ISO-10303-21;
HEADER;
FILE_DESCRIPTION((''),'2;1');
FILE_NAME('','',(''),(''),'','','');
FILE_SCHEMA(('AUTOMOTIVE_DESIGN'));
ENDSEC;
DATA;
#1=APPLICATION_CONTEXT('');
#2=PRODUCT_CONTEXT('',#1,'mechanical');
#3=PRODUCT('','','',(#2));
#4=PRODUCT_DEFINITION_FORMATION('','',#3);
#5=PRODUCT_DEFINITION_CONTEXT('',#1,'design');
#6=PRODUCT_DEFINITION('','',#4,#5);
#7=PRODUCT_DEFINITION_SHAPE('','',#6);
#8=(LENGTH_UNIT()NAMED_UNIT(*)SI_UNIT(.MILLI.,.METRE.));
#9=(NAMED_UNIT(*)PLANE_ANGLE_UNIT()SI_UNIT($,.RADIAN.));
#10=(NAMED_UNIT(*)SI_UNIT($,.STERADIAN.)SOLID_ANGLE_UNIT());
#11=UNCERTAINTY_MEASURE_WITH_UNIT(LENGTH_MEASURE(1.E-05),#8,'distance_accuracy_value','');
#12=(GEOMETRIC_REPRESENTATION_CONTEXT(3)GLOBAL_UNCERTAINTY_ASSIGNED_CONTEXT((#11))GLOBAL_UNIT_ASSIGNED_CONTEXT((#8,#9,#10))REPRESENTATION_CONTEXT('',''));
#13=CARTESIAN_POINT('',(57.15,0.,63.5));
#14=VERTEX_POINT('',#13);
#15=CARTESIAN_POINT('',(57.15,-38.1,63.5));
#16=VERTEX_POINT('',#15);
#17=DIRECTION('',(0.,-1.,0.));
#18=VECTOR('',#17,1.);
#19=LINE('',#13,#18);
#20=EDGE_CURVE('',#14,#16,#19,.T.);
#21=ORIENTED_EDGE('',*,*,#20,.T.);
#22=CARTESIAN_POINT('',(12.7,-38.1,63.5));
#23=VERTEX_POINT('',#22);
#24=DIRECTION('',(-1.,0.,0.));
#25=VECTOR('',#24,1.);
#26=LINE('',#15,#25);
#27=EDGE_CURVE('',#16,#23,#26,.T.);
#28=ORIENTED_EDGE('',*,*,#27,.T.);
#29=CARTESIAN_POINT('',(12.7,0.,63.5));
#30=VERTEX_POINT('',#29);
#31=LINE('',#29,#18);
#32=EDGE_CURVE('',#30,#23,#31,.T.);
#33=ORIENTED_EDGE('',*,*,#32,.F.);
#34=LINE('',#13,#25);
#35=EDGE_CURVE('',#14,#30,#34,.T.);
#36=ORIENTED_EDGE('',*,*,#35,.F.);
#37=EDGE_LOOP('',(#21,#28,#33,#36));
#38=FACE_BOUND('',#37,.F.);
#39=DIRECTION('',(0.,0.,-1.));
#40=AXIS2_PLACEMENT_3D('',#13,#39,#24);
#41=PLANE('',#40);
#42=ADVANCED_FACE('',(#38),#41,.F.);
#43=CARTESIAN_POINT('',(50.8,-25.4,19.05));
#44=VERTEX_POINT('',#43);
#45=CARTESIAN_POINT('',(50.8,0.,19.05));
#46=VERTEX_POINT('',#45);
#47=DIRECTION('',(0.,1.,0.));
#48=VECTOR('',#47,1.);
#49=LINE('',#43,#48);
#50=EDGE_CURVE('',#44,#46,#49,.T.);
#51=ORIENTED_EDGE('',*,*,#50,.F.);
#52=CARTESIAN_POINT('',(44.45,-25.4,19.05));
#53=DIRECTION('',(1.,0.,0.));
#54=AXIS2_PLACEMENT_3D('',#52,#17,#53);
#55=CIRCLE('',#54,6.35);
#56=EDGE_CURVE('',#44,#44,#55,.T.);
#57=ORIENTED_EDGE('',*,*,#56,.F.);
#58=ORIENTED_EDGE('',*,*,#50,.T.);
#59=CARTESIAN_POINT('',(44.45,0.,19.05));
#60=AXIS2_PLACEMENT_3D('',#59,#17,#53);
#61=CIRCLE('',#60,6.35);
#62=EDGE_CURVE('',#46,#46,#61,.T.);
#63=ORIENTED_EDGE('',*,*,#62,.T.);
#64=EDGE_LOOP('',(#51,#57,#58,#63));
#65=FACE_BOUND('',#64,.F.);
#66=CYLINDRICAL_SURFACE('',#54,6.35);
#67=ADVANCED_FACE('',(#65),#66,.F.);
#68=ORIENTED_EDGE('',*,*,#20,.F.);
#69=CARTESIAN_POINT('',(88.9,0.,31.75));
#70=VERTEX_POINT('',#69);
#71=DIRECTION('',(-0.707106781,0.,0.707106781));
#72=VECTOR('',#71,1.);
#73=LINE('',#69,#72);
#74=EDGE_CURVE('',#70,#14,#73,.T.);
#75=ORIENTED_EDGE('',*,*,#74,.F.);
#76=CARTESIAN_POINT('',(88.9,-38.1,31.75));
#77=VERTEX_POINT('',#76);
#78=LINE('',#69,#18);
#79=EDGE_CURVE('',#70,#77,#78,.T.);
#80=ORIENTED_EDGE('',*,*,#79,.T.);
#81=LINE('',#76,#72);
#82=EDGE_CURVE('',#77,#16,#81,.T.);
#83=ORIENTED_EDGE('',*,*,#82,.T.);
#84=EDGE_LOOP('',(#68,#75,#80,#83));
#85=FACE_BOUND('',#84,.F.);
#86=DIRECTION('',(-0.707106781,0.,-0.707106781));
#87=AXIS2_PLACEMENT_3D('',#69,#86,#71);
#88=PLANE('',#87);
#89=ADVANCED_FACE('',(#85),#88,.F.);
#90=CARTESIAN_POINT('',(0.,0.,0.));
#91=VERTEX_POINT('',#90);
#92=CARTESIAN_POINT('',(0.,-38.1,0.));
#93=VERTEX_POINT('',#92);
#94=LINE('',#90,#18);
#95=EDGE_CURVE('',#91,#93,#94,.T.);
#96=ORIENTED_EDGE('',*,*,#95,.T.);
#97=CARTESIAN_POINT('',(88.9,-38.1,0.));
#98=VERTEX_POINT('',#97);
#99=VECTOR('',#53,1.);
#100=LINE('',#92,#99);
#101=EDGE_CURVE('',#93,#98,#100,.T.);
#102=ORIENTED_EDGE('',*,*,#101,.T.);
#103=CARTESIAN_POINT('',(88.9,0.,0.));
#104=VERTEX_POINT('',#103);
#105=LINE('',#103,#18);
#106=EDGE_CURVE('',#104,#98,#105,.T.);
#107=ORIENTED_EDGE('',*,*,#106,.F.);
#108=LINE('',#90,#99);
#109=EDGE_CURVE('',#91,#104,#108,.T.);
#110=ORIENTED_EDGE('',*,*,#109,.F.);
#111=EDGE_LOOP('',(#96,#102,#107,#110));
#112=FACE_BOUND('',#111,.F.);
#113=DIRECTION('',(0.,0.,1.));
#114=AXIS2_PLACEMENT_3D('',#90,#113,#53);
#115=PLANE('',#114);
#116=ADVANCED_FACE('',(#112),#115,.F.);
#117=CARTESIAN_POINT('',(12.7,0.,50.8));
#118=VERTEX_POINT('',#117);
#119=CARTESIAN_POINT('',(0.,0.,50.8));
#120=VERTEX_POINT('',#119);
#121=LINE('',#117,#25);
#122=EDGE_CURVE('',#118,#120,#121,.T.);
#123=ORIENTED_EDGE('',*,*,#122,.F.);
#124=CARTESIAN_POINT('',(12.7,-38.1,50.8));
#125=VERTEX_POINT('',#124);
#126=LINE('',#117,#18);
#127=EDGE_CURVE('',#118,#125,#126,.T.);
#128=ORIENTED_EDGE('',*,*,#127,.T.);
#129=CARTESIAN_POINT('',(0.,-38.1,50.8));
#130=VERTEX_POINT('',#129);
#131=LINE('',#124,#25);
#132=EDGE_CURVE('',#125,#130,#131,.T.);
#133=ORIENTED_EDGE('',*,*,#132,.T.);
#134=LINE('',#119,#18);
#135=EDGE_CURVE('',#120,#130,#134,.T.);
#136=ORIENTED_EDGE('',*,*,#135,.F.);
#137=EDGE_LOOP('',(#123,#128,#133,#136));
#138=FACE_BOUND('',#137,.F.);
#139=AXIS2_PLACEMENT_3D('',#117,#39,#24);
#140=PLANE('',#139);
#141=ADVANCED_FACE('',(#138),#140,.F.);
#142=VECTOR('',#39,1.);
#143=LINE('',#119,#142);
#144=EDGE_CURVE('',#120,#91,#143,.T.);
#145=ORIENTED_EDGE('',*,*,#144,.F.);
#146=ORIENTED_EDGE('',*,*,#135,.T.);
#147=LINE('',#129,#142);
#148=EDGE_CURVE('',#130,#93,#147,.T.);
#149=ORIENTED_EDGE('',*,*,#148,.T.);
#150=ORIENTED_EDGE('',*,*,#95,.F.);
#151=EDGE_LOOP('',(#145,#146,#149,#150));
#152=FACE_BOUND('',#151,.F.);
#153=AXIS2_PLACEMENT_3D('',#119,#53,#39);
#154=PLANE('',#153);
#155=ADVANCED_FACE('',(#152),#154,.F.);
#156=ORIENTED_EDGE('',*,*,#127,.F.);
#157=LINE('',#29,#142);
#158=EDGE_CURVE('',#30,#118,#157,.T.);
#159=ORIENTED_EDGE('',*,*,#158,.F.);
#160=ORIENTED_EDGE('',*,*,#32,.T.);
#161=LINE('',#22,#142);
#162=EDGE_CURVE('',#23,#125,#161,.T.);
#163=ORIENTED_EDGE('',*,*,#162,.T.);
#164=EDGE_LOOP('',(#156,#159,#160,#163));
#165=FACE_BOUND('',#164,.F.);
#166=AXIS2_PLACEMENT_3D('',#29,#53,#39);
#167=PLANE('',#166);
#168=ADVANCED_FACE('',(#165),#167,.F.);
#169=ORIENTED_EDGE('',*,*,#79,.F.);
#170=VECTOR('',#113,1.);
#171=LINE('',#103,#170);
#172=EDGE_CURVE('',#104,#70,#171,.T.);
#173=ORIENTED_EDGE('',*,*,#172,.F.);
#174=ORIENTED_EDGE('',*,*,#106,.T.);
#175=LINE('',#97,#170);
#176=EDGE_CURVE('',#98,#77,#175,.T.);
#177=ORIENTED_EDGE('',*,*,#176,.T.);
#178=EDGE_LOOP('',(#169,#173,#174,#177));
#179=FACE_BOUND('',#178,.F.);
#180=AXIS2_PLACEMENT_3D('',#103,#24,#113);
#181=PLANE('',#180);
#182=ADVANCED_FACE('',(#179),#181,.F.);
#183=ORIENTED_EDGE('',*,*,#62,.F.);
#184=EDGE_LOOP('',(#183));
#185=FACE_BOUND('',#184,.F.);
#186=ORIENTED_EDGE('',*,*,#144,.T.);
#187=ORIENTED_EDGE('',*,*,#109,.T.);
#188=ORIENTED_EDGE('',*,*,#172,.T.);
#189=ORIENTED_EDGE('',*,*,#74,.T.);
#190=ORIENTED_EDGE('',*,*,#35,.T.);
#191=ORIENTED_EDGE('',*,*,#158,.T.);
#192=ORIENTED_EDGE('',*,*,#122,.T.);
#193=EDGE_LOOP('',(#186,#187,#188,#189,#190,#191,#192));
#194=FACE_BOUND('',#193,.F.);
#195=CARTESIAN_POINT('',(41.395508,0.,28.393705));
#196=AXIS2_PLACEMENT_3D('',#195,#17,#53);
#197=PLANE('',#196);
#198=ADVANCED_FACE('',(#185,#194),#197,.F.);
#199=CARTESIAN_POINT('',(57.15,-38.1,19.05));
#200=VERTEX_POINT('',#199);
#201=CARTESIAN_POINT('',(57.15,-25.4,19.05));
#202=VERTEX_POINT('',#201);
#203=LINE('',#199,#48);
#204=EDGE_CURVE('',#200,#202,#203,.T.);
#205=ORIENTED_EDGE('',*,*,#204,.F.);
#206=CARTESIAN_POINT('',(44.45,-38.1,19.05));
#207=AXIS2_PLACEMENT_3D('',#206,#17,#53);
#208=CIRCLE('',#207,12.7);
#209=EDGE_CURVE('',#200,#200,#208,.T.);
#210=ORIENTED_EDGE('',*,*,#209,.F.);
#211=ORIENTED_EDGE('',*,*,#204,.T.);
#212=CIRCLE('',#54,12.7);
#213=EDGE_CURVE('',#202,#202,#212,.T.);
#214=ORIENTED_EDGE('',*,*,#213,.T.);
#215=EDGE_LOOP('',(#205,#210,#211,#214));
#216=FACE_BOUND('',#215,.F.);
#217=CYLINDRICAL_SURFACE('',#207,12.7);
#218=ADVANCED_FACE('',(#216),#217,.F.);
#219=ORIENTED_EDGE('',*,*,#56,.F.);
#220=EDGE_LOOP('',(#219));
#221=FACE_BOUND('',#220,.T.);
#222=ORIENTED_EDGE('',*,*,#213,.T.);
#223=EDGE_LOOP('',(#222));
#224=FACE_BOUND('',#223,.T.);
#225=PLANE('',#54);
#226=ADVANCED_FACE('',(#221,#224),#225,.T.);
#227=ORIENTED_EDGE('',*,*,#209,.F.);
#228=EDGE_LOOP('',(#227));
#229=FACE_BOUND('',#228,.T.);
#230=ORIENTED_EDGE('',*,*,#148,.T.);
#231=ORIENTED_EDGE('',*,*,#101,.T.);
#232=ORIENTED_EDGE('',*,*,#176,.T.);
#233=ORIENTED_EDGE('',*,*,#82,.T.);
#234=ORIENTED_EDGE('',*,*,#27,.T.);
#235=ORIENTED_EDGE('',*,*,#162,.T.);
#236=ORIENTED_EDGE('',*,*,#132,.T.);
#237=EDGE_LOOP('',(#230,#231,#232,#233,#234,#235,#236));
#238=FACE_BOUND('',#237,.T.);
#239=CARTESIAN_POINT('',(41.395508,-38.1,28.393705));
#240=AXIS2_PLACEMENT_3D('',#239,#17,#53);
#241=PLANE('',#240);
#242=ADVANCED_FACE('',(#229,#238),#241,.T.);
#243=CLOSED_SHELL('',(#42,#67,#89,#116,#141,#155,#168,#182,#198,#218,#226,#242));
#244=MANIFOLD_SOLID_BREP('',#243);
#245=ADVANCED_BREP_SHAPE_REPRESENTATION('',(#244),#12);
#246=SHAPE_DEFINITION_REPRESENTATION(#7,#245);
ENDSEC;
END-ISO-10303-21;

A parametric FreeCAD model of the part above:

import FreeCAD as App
import Part
import Sketcher
from FreeCAD import Vector
Q = App.Units.Quantity

doc = App.newDocument("Part")
body = doc.addObject("PartDesign::Body", "Body")

sketch1 = body.newObject("Sketcher::SketchObject", "Sketch")
sketch1.AttachmentSupport = (doc.getObject("XZ_Plane"), [""])
sketch1.MapMode = "FlatFace"
sketch1.addGeometry([
    Part.LineSegment(Vector(0, 51, 0), Vector(0, 0, 0)),
    Part.LineSegment(Vector(0, 0, 0), Vector(89, 0, 0)),
    Part.LineSegment(Vector(89, 0, 0), Vector(89, 32, 0)),
    Part.LineSegment(Vector(89, 32, 0), Vector(57, 64, 0)),
    Part.LineSegment(Vector(57, 64, 0), Vector(13, 64, 0)),
    Part.LineSegment(Vector(13, 64, 0), Vector(13, 51, 0)),
    Part.LineSegment(Vector(13, 51, 0), Vector(0, 51, 0)),
], False)
sketch1.addConstraint([
    Sketcher.Constraint("Coincident", 0, 2, 1, 1),
    Sketcher.Constraint("Coincident", 1, 2, 2, 1),
    Sketcher.Constraint("Coincident", 2, 2, 3, 1),
    Sketcher.Constraint("Coincident", 3, 2, 4, 1),
    Sketcher.Constraint("Coincident", 4, 2, 5, 1),
    Sketcher.Constraint("Coincident", 5, 2, 6, 1),
    Sketcher.Constraint("Coincident", 6, 2, 0, 1),
    Sketcher.Constraint("Vertical", 0),
    Sketcher.Constraint("Horizontal", 1),
    Sketcher.Constraint("Vertical", 2),
    Sketcher.Constraint("Horizontal", 4),
    Sketcher.Constraint("Vertical", 5),
    Sketcher.Constraint("Horizontal", 6),
    Sketcher.Constraint("Coincident", 0, 2, -1, 1),
    Sketcher.Constraint("Equal", 6, 5),
    Sketcher.Constraint("DistanceY", 0, 2, 0, 1, Q("2 in")),
    Sketcher.Constraint("DistanceX", 1, 1, 1, 2, Q("3.5 in")),
    Sketcher.Constraint("DistanceX", 6, 2, 6, 1, Q("0.5 in")),
    Sketcher.Constraint("Angle", 3, Q("135 deg")),
    Sketcher.Constraint("DistanceX", 4, 2, 4, 1, Q("1.75 in")),
])
pad1 = body.newObject("PartDesign::Pad", "Pad")
pad1.Profile = sketch1
pad1.Length = Q("1.5 in")

sketch2 = body.newObject("Sketcher::SketchObject", "Sketch001")
sketch2.AttachmentSupport = (doc.getObject("XZ_Plane"), [""])
sketch2.MapMode = "FlatFace"
sketch2.AttachmentOffset = App.Placement(Vector(0, 0, 1.5 * 25.4), App.Rotation())
sketch2.addGeometry(Part.Circle(Vector(44, 19, 0), Vector(0, 0, 1), 13), False)
sketch2.addConstraint([
    Sketcher.Constraint("Diameter", 0, Q("1 in")),
    Sketcher.Constraint("DistanceX", -1, 1, 0, 3, Q("1.75 in")),
    Sketcher.Constraint("DistanceY", -1, 1, 0, 3, Q("0.75 in")),
])
pocket1 = body.newObject("PartDesign::Pocket", "Pocket")
pocket1.Profile = sketch2
pocket1.Length = Q("0.5 in")

sketch3 = body.newObject("Sketcher::SketchObject", "Sketch002")
sketch3.AttachmentSupport = (doc.getObject("XZ_Plane"), [""])
sketch3.MapMode = "FlatFace"
sketch3.AttachmentOffset = App.Placement(Vector(0, 0, 1 * 25.4), App.Rotation())
sketch3.addGeometry(Part.Circle(Vector(44, 19, 0), Vector(0, 0, 1), 6), False)
sketch3.addConstraint([
    Sketcher.Constraint("Diameter", 0, Q("0.5 in")),
    Sketcher.Constraint("DistanceX", -1, 1, 0, 3, Q("1.75 in")),
    Sketcher.Constraint("DistanceY", -1, 1, 0, 3, Q("0.75 in")),
])
pocket2 = body.newObject("PartDesign::Pocket", "Pocket001")
pocket2.Profile = sketch3
pocket2.Type = "ThroughAll"

doc.recompute()
